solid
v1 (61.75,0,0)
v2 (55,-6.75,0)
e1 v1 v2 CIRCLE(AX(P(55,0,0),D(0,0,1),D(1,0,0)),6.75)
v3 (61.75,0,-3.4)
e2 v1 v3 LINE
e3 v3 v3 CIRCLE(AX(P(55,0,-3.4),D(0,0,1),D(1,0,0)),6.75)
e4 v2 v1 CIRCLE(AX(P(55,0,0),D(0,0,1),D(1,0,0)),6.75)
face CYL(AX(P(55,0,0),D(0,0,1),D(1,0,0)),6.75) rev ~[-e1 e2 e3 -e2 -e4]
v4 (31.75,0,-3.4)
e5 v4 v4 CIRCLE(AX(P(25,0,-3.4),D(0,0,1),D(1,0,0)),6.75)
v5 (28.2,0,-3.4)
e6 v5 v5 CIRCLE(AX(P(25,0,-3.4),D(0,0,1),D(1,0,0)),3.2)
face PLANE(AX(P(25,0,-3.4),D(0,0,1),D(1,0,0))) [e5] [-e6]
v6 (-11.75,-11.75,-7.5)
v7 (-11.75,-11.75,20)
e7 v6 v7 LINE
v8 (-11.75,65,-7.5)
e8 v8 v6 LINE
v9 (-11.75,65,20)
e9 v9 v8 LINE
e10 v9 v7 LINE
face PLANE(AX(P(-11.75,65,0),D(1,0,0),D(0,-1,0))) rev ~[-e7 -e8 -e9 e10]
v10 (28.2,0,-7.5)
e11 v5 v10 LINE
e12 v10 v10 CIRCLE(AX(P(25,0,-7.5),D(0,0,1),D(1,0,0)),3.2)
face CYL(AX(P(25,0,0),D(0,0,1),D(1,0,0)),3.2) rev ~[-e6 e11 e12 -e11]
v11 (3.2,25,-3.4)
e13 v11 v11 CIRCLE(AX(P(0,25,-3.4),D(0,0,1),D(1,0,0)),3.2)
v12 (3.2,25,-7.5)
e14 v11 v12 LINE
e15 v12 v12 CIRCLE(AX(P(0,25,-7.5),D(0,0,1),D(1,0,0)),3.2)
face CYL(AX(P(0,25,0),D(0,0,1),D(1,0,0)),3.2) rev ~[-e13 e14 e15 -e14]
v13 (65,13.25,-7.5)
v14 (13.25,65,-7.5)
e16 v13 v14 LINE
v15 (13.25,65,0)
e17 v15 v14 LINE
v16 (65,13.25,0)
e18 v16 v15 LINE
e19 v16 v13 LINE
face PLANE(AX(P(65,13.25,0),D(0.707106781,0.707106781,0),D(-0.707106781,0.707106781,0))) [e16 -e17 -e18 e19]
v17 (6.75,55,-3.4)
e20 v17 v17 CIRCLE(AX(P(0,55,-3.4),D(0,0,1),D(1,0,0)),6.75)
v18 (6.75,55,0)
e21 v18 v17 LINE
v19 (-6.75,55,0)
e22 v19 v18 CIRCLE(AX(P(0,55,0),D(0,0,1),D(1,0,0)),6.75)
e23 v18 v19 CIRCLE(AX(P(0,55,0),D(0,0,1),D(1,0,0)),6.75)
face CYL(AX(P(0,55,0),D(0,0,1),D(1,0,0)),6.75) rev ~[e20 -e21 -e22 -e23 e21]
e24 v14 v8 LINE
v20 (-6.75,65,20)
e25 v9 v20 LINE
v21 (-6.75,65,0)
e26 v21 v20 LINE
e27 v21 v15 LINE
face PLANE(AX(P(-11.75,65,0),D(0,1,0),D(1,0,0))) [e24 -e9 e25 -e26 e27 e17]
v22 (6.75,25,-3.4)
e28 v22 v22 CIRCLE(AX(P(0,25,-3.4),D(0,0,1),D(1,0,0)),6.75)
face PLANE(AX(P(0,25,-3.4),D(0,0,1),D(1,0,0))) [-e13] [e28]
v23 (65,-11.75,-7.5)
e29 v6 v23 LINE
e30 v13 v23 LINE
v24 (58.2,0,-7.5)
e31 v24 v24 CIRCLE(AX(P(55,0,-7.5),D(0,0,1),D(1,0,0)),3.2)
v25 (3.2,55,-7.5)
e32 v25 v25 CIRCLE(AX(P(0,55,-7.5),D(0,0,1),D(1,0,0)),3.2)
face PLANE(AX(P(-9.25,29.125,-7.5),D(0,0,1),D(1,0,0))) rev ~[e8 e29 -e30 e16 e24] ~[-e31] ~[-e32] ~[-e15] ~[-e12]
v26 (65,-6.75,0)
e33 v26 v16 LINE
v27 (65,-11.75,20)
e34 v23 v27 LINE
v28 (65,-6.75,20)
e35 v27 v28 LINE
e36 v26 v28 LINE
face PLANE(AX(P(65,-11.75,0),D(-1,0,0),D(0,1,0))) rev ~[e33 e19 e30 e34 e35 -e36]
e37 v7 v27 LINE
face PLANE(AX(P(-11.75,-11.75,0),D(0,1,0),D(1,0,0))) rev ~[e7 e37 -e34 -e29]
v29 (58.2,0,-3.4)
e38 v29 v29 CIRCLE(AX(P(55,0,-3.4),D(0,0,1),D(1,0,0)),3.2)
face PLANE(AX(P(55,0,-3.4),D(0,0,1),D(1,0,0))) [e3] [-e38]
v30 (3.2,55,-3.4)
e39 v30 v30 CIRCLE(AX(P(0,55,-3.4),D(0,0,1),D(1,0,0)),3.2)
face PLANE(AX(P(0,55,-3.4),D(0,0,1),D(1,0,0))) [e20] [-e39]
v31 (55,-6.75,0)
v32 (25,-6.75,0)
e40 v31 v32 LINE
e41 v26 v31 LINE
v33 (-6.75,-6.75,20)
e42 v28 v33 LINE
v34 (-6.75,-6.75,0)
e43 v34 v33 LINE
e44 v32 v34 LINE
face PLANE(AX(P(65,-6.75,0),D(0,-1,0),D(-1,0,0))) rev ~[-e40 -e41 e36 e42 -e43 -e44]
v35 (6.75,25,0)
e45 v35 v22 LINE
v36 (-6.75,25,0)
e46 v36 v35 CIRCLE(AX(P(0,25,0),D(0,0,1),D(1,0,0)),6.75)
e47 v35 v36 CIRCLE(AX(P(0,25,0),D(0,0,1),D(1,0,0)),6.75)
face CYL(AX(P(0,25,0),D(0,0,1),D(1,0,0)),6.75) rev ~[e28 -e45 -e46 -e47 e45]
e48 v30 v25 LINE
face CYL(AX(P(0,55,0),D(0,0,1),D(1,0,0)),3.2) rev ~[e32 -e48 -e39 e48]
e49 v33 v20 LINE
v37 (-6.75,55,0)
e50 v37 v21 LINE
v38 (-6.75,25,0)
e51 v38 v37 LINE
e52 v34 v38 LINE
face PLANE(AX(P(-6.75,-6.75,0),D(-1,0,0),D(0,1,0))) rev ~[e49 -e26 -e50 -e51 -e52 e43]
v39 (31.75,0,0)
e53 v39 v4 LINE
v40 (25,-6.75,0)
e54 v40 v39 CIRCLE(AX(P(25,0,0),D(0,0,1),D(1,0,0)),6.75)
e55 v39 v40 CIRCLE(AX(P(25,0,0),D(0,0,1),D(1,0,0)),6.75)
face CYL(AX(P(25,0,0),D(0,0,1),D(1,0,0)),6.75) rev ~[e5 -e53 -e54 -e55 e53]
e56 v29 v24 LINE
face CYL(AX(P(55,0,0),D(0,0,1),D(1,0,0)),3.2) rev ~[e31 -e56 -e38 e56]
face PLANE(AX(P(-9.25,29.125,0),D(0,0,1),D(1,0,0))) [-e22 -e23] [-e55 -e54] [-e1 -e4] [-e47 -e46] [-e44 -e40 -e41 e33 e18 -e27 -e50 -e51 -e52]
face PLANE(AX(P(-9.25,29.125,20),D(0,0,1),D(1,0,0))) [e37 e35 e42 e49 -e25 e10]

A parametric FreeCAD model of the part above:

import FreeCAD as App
import Part
import Sketcher

V = App.Vector


def add_polygon(sketch, points):
    """Adds a closed chain of lines whose ends are joined by coincident constraints."""
    first, n = sketch.GeometryCount, len(points)
    for a, b in zip(points, points[1:] + points[:1]):
        sketch.addGeometry(Part.LineSegment(App.Vector(*a, 0), App.Vector(*b, 0)), False)
    for i in range(n):
        sketch.addConstraint(Sketcher.Constraint("Coincident", first + i, 2, first + (i + 1) % n, 1))

doc = App.newDocument("Part")
body = doc.addObject("PartDesign::Body", "Body")

sketch1 = body.newObject("Sketcher::SketchObject", "Sketch")
sketch1.AttachmentSupport = (doc.getObject("XY_Plane"), [""])
sketch1.MapMode = "FlatFace"
add_polygon(sketch1, [(13.25, 65), (-6.75, 65), (-6.75, -6.75), (65, -6.75), (65, 13.25)])
sketch1.addConstraint([
    Sketcher.Constraint("Horizontal", 0),
    Sketcher.Constraint("Vertical", 1),
    Sketcher.Constraint("Horizontal", 2),
    Sketcher.Constraint("Vertical", 3),
    Sketcher.Constraint("Equal", 2, 1),
    Sketcher.Constraint("Equal", 0, 3),
    Sketcher.Constraint("DistanceX", 0, 2, 0, 1, 20.0),
    Sketcher.Constraint("DistanceY", -1, 1, 0, 2, 65.0),
    Sketcher.Constraint("DistanceX", -1, 1, 2, 2, 65.0),
    Sketcher.Constraint("DistanceX", 2, 1, 2, 2, 71.75),
])
pad1 = body.newObject("PartDesign::Pad", "Pad")
pad1.Profile = sketch1
pad1.Length = 7.5
pad1.Reversed = True

sketch2 = body.newObject("Sketcher::SketchObject", "Sketch001")
sketch2.AttachmentSupport = (doc.getObject("XY_Plane"), [""])
sketch2.MapMode = "FlatFace"
add_polygon(sketch2, [(-11.75, 65), (-11.75, -11.75), (65, -11.75), (65, -6.75), (-6.75, -6.75), (-6.75, 65)])
sketch2.addConstraint([
    Sketcher.Constraint("Vertical", 0),
    Sketcher.Constraint("Horizontal", 1),
    Sketcher.Constraint("Vertical", 2),
    Sketcher.Constraint("Horizontal", 3),
    Sketcher.Constraint("Vertical", 4),
    Sketcher.Constraint("Horizontal", 5),
    Sketcher.Constraint("Equal", 1, 0),
    Sketcher.Constraint("Equal", 5, 2),
    Sketcher.Constraint("DistanceX", 5, 2, 5, 1, 5.0),
    Sketcher.Constraint("DistanceX", -1, 1, 1, 2, 65.0),
    Sketcher.Constraint("DistanceY", -1, 1, 4, 2, 65.0),
    Sketcher.Constraint("DistanceX", 1, 1, 1, 2, 76.75),
])
pad2 = body.newObject("PartDesign::Pad", "Pad001")
pad2.Profile = sketch2
pad2.Length = 7.5
pad2.Reversed = True

sketch3 = body.newObject("Sketcher::SketchObject", "Sketch002")
sketch3.AttachmentSupport = (doc.getObject("XY_Plane"), [""])
sketch3.MapMode = "FlatFace"
sketch3.addGeometry([
    Part.Circle(V(55, 0, 0), V(0, 0, 1), 6.75),
    Part.Circle(V(25, 0, 0), V(0, 0, 1), 6.75),
    Part.Circle(V(0, 25, 0), V(0, 0, 1), 6.75),
    Part.Circle(V(0, 55, 0), V(0, 0, 1), 6.75),
], False)
sketch3.addConstraint([
    Sketcher.Constraint("Equal", 0, 1),
    Sketcher.Constraint("Equal", 1, 2),
    Sketcher.Constraint("Equal", 2, 3),
    Sketcher.Constraint("PointOnObject", 0, 3, -1),
    Sketcher.Constraint("PointOnObject", 1, 3, -1),
    Sketcher.Constraint("PointOnObject", 2, 3, -2),
    Sketcher.Constraint("PointOnObject", 3, 3, -2),
    Sketcher.Constraint("Diameter", 0, 13.5),
    Sketcher.Constraint("DistanceX", -1, 1, 0, 3, 55.0),
    Sketcher.Constraint("DistanceX", -1, 1, 1, 3, 25.0),
    Sketcher.Constraint("DistanceY", -1, 1, 2, 3, 25.0),
    Sketcher.Constraint("DistanceY", -1, 1, 3, 3, 55.0),
])
pocket1 = body.newObject("PartDesign::Pocket", "Pocket")
pocket1.Profile = sketch3
pocket1.Length = 3.4

sketch4 = body.newObject("Sketcher::SketchObject", "Sketch003")
sketch4.AttachmentSupport = (doc.getObject("XY_Plane"), [""])
sketch4.MapMode = "FlatFace"
add_polygon(sketch4, [(-11.75, 65), (-11.75, -11.75), (65, -11.75), (65, -6.75), (-6.75, -6.75), (-6.75, 65)])
sketch4.addConstraint([
    Sketcher.Constraint("Vertical", 0),
    Sketcher.Constraint("Horizontal", 1),
    Sketcher.Constraint("Vertical", 2),
    Sketcher.Constraint("Horizontal", 3),
    Sketcher.Constraint("Vertical", 4),
    Sketcher.Constraint("Horizontal", 5),
    Sketcher.Constraint("Equal", 1, 0),
    Sketcher.Constraint("Equal", 5, 2),
    Sketcher.Constraint("DistanceX", 5, 2, 5, 1, 5.0),
    Sketcher.Constraint("DistanceX", -1, 1, 1, 2, 65.0),
    Sketcher.Constraint("DistanceY", -1, 1, 4, 2, 65.0),
    Sketcher.Constraint("DistanceX", 1, 1, 1, 2, 76.75),
])
pad3 = body.newObject("PartDesign::Pad", "Pad002")
pad3.Profile = sketch4
pad3.Length = 20

sketch5 = body.newObject("Sketcher::SketchObject", "Sketch004")
sketch5.AttachmentSupport = (doc.getObject("XY_Plane"), [""])
sketch5.MapMode = "FlatFace"
sketch5.addGeometry([
    Part.Circle(V(0, 25, 0), V(0, 0, 1), 3.2),
    Part.Circle(V(0, 55, 0), V(0, 0, 1), 3.2),
    Part.Circle(V(25, 0, 0), V(0, 0, 1), 3.2),
    Part.Circle(V(55, 0, 0), V(0, 0, 1), 3.2),
], False)
sketch5.addConstraint([
    Sketcher.Constraint("Equal", 0, 1),
    Sketcher.Constraint("Equal", 1, 2),
    Sketcher.Constraint("Equal", 2, 3),
    Sketcher.Constraint("PointOnObject", 0, 3, -2),
    Sketcher.Constraint("PointOnObject", 1, 3, -2),
    Sketcher.Constraint("PointOnObject", 2, 3, -1),
    Sketcher.Constraint("PointOnObject", 3, 3, -1),
    Sketcher.Constraint("Diameter", 0, 6.4),
    Sketcher.Constraint("DistanceY", -1, 1, 0, 3, 25.0),
    Sketcher.Constraint("DistanceY", -1, 1, 1, 3, 55.0),
    Sketcher.Constraint("DistanceX", -1, 1, 2, 3, 25.0),
    Sketcher.Constraint("DistanceX", -1, 1, 3, 3, 55.0),
])
pocket2 = body.newObject("PartDesign::Pocket", "Pocket001")
pocket2.Profile = sketch5
pocket2.Length = 25

doc.recompute()
